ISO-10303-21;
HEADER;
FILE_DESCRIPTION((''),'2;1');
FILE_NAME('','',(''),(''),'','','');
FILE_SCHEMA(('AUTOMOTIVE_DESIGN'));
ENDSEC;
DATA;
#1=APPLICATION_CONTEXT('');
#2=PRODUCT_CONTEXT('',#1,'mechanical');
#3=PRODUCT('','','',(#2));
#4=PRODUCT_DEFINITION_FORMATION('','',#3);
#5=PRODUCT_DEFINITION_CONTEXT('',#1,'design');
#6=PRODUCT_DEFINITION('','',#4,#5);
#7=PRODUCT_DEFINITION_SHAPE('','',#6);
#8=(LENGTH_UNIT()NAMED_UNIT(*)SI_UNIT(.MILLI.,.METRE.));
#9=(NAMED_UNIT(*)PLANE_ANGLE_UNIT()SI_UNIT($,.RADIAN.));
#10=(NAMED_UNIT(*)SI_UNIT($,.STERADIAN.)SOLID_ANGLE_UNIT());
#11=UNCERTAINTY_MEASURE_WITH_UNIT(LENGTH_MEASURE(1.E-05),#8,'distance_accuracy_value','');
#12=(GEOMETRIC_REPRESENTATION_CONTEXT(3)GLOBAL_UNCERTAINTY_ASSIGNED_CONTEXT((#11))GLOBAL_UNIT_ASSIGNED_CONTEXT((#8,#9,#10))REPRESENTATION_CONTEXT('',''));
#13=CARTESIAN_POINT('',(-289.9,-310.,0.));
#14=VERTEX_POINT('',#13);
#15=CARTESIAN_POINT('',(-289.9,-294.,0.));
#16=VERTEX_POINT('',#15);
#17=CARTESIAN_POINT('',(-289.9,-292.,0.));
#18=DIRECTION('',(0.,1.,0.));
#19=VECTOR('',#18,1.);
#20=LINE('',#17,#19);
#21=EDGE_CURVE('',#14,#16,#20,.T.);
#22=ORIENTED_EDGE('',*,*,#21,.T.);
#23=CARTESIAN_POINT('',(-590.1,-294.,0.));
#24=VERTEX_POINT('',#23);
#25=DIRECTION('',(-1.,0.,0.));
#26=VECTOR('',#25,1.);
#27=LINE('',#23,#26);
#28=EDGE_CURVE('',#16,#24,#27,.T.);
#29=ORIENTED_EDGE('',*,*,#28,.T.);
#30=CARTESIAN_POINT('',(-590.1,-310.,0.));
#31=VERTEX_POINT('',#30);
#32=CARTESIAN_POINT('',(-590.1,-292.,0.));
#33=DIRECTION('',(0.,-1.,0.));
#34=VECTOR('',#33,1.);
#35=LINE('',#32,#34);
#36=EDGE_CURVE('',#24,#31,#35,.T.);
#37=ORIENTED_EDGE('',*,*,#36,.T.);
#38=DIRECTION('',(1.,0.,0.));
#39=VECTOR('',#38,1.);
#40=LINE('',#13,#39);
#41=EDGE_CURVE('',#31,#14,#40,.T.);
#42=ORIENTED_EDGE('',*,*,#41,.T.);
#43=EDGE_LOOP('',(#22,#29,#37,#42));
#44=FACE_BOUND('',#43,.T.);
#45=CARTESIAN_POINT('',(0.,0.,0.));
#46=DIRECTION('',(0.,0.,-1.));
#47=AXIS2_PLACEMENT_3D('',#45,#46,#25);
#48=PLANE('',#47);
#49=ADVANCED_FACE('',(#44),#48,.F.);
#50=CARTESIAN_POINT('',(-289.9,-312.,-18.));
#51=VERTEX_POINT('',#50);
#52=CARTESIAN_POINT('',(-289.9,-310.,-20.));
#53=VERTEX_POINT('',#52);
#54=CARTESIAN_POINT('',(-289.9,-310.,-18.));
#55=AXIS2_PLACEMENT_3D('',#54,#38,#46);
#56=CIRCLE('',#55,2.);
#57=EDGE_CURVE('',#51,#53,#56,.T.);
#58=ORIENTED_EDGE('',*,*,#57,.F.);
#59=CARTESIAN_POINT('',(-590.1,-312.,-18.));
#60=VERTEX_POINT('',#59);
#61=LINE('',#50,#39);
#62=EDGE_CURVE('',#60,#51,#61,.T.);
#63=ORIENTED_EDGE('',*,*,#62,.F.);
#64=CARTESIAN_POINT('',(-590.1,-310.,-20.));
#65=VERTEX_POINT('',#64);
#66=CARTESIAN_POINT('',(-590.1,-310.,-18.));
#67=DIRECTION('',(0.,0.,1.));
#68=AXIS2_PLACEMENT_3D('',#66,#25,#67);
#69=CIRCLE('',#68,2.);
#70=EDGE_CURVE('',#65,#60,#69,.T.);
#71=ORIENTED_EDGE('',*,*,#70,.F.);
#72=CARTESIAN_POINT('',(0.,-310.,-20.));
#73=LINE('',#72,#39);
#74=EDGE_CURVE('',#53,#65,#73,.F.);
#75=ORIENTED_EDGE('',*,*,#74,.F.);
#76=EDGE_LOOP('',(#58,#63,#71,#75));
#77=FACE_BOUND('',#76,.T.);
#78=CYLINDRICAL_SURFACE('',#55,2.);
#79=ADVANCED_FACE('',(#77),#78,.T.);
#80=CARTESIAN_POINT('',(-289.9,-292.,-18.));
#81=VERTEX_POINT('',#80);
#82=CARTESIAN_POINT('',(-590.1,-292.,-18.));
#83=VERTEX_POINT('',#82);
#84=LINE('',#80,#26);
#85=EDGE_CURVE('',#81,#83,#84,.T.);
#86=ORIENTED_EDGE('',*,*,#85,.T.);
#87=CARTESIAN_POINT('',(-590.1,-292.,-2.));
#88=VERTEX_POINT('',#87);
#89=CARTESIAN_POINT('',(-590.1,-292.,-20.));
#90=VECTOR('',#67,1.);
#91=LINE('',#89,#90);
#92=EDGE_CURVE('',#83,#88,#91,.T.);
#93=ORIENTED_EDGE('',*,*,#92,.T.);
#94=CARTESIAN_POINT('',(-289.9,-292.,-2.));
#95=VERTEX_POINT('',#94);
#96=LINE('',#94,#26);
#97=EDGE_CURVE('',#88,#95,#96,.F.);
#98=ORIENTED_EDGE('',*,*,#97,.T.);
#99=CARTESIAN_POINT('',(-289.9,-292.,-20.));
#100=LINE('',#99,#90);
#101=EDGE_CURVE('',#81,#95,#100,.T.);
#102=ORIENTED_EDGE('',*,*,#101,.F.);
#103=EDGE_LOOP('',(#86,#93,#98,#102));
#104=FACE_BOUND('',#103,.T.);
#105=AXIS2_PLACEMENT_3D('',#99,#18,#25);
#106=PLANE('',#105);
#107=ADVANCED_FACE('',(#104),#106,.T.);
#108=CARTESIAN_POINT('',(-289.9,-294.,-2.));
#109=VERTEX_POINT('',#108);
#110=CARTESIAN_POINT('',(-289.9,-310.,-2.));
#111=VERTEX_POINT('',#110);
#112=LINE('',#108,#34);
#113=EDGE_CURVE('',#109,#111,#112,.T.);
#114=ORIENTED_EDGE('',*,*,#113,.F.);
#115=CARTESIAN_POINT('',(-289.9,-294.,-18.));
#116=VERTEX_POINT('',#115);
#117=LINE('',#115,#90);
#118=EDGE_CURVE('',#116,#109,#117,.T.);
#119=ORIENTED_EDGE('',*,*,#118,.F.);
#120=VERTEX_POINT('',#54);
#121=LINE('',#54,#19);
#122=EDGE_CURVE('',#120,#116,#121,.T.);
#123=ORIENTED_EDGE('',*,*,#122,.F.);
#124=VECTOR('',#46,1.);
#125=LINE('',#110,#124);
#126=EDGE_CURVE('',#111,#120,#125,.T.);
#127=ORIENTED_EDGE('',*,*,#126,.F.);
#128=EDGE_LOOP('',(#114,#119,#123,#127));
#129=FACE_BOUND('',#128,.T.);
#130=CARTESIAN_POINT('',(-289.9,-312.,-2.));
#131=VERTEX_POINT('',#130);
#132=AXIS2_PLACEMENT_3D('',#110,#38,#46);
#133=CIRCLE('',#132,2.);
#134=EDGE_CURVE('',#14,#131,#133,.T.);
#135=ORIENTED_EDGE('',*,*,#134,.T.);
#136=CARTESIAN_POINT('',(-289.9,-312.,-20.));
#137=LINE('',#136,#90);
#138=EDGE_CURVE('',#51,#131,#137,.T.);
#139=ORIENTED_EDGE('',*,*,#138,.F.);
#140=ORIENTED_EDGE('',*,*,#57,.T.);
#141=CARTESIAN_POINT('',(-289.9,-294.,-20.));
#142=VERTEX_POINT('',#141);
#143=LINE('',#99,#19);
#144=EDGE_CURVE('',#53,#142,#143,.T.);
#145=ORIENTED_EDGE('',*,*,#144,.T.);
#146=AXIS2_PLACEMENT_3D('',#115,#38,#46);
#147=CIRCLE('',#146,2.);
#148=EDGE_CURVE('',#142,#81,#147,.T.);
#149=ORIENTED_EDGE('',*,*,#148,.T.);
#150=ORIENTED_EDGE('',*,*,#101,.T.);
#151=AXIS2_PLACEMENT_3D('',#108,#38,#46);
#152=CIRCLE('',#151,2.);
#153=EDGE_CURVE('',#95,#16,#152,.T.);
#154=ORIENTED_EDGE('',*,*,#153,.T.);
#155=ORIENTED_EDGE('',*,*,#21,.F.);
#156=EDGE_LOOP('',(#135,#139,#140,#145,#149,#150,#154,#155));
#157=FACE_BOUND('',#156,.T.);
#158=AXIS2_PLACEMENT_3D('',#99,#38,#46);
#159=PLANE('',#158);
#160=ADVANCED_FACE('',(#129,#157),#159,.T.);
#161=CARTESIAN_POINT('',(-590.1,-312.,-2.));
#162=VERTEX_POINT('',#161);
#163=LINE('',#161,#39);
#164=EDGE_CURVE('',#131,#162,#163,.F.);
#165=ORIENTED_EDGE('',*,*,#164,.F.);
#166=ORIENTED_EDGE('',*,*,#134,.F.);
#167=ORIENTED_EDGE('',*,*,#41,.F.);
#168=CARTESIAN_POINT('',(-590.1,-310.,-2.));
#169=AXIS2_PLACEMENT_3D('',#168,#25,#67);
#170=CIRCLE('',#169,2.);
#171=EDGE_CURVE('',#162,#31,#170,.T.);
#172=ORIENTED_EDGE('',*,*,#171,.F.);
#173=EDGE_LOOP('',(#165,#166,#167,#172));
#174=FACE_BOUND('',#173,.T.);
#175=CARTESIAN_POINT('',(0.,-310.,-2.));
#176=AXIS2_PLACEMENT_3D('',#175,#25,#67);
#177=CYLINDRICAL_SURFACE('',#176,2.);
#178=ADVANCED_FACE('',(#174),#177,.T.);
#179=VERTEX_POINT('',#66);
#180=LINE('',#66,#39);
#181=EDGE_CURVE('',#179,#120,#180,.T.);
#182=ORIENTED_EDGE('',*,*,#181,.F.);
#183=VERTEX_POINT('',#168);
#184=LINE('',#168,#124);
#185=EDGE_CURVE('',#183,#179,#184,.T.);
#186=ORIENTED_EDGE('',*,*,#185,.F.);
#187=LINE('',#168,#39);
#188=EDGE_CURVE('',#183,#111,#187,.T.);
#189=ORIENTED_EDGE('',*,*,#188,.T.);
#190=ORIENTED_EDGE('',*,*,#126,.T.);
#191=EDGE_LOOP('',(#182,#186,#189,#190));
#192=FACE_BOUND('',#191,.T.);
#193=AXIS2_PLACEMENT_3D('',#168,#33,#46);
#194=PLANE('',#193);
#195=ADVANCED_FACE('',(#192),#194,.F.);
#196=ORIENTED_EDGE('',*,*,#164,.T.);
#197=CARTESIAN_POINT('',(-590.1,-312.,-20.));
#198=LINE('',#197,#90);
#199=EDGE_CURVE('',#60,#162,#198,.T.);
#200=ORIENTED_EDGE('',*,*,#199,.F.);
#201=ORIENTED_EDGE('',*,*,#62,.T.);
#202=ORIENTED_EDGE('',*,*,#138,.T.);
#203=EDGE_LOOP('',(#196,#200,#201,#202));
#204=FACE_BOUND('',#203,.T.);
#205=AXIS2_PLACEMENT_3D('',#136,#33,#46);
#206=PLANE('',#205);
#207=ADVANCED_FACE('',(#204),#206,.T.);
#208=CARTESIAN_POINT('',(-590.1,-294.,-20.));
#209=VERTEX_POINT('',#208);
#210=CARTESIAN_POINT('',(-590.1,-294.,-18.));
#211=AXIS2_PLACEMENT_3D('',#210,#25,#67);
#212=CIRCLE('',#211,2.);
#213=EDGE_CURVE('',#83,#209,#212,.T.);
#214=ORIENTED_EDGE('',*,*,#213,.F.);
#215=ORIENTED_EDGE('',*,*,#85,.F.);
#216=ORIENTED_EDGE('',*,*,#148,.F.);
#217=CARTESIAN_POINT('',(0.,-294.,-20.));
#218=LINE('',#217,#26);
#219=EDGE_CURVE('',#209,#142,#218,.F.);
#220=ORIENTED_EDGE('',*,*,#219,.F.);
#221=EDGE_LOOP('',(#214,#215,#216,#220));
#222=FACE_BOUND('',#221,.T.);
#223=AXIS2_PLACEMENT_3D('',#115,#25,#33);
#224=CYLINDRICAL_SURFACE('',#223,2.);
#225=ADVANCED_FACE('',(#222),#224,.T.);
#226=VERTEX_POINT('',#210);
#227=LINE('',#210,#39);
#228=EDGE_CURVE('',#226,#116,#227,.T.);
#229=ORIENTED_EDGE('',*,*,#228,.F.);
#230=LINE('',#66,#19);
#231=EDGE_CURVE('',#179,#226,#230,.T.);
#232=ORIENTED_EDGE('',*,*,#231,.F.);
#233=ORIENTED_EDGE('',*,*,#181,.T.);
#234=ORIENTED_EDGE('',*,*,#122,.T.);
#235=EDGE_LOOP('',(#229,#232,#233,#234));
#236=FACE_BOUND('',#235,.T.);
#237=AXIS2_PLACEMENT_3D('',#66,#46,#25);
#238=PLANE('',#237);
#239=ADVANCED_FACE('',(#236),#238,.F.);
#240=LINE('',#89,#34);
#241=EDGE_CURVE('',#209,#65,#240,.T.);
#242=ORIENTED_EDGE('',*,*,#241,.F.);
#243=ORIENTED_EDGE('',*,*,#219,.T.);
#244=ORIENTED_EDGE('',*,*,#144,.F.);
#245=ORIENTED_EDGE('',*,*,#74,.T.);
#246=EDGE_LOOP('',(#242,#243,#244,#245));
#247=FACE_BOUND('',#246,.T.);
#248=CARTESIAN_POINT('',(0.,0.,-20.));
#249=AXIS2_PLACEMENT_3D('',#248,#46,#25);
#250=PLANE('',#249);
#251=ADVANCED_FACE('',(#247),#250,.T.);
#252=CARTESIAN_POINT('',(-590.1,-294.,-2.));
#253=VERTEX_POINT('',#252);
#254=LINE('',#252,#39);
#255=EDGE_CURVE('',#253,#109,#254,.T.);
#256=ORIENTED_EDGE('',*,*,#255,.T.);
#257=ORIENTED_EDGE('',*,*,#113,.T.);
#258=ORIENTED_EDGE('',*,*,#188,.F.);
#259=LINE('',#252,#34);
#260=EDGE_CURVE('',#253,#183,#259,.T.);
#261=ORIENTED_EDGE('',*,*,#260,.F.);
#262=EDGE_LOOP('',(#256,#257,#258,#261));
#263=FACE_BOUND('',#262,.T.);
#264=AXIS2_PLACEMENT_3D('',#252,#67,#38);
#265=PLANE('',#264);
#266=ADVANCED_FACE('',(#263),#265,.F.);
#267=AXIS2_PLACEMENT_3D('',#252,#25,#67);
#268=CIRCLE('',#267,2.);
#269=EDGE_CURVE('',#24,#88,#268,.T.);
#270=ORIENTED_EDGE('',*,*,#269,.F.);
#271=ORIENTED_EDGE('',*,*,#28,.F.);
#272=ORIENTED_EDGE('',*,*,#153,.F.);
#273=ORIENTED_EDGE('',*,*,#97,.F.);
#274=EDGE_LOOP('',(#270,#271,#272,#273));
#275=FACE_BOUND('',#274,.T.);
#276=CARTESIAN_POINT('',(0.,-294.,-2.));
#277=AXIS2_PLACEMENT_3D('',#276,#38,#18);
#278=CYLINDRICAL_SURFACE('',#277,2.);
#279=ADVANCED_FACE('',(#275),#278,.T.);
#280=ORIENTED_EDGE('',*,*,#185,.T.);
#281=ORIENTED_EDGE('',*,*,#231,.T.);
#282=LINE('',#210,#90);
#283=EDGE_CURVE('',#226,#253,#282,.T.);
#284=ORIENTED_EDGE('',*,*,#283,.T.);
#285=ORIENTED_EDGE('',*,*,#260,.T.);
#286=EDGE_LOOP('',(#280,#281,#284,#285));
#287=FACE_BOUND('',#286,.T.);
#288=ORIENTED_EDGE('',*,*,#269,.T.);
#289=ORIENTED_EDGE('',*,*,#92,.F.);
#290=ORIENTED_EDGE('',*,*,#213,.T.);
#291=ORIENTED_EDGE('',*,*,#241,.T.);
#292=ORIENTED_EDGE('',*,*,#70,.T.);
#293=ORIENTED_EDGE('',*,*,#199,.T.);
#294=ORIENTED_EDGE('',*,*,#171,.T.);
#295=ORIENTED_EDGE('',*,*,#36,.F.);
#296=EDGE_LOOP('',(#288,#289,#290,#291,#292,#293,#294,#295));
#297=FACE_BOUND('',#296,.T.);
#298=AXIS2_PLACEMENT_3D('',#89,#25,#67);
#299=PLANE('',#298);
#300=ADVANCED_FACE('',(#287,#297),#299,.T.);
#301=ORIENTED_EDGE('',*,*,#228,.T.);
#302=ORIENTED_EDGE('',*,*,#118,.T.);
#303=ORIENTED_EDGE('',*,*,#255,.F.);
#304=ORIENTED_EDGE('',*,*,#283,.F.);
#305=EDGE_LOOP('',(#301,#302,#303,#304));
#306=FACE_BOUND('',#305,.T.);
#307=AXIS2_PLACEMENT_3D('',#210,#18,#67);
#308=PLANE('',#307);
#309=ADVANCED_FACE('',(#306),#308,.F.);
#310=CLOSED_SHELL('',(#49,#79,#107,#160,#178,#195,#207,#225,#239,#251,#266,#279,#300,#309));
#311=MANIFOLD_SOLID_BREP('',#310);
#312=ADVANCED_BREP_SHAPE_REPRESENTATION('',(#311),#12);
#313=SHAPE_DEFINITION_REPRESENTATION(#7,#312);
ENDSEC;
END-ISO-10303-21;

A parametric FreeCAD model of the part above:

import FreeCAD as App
import Part
import Sketcher

V = App.Vector
Q = App.Units.Quantity


def edges_at(feature, points):
    """Names of the edges that pass closest to the given points."""
    edges = feature.Shape.Edges
    near = lambda p: min(range(len(edges)), key=lambda i: edges[i].distToShape(Part.Vertex(*p))[0])
    return sorted({f"Edge{near(p) + 1}" for p in points})


def add_polygon(sketch, points):
    """Adds a closed chain of lines whose ends are joined by coincident constraints."""
    first, n = sketch.GeometryCount, len(points)
    for a, b in zip(points, points[1:] + points[:1]):
        sketch.addGeometry(Part.LineSegment(App.Vector(*a, 0), App.Vector(*b, 0)), False)
    for i in range(n):
        sketch.addConstraint(Sketcher.Constraint("Coincident", first + i, 2, first + (i + 1) % n, 1))

doc = App.newDocument("Part")
params = doc.addObject("Spreadsheet::Sheet", "Params")
for row, (alias, value) in enumerate([
    ("sketch1_height", "20 mm"),
    ("sketch1_width", "300.2 mm"),
    ("pad1_length", "20 mm"),
    ("fillet_radius", "2 mm"),
    ("sketch2_width", "16 mm"),
], start=1):
    params.set(f"A{row}", alias)
    params.set(f"B{row}", "=" + value)
    params.setAlias(f"B{row}", alias)

body = doc.addObject("PartDesign::Body", "Body")

sketch1 = body.newObject("Sketcher::SketchObject", "Sketch")
sketch1.AttachmentSupport = (doc.getObject("XY_Plane"), [""])
sketch1.MapMode = "FlatFace"
add_polygon(sketch1, [(-590, -292), (-590, -312), (-290, -312), (-290, -292)])
sketch1.addConstraint([
    Sketcher.Constraint("Vertical", 0),
    Sketcher.Constraint("Horizontal", 1),
    Sketcher.Constraint("Vertical", 2),
    Sketcher.Constraint("Horizontal", 3),
    Sketcher.Constraint("DistanceY", 0, 2, 0, 1, Q("20 mm")),
    Sketcher.Constraint("DistanceX", 1, 1, 1, 2, Q("300.2 mm")),
    Sketcher.Constraint("DistanceY", 0, 2, -1, 1, Q("312 mm")),
    Sketcher.Constraint("DistanceX", 0, 2, -1, 1, Q("590.1 mm")),
])
sketch1.setExpression("Constraints[8]", "Params.sketch1_height")
sketch1.setExpression("Constraints[9]", "Params.sketch1_width")
pad1 = body.newObject("PartDesign::Pad", "Pad")
pad1.Profile = sketch1
pad1.setExpression("Length", "Params.pad1_length")
pad1.Reversed = True
doc.recompute()

fillet = body.newObject("PartDesign::Fillet", "Fillet")
fillet.Base = (pad1, edges_at(pad1, [
    (-440, -312, -20),
    (-440, -312, 0),
    (-440, -292, 0),
    (-440, -292, -20),
]))
fillet.setExpression("Radius", "Params.fillet_radius")

sketch2 = body.newObject("Sketcher::SketchObject", "Sketch001")
sketch2.AttachmentSupport = (doc.getObject("YZ_Plane"), [""])
sketch2.MapMode = "FlatFace"
sketch2.AttachmentOffset = App.Placement(V(0, 0, -289.9), App.Rotation())
add_polygon(sketch2, [(-294, -2), (-310, -2), (-310, -18), (-294, -18)])
sketch2.addConstraint([
    Sketcher.Constraint("Horizontal", 0),
    Sketcher.Constraint("Vertical", 1),
    Sketcher.Constraint("Horizontal", 2),
    Sketcher.Constraint("Vertical", 3),
    Sketcher.Constraint("Equal", 2, 1),
    Sketcher.Constraint("DistanceX", 0, 2, 0, 1, Q("16 mm")),
    Sketcher.Constraint("DistanceX", 0, 2, -1, 1, Q("310 mm")),
    Sketcher.Constraint("DistanceY", 0, 2, -1, 1, Q("2 mm")),
])
sketch2.setExpression("Constraints[9]", "Params.sketch2_width")
pocket1 = body.newObject("PartDesign::Pocket", "Pocket")
pocket1.Profile = sketch2
pocket1.Type = "ThroughAll"

doc.recompute()
